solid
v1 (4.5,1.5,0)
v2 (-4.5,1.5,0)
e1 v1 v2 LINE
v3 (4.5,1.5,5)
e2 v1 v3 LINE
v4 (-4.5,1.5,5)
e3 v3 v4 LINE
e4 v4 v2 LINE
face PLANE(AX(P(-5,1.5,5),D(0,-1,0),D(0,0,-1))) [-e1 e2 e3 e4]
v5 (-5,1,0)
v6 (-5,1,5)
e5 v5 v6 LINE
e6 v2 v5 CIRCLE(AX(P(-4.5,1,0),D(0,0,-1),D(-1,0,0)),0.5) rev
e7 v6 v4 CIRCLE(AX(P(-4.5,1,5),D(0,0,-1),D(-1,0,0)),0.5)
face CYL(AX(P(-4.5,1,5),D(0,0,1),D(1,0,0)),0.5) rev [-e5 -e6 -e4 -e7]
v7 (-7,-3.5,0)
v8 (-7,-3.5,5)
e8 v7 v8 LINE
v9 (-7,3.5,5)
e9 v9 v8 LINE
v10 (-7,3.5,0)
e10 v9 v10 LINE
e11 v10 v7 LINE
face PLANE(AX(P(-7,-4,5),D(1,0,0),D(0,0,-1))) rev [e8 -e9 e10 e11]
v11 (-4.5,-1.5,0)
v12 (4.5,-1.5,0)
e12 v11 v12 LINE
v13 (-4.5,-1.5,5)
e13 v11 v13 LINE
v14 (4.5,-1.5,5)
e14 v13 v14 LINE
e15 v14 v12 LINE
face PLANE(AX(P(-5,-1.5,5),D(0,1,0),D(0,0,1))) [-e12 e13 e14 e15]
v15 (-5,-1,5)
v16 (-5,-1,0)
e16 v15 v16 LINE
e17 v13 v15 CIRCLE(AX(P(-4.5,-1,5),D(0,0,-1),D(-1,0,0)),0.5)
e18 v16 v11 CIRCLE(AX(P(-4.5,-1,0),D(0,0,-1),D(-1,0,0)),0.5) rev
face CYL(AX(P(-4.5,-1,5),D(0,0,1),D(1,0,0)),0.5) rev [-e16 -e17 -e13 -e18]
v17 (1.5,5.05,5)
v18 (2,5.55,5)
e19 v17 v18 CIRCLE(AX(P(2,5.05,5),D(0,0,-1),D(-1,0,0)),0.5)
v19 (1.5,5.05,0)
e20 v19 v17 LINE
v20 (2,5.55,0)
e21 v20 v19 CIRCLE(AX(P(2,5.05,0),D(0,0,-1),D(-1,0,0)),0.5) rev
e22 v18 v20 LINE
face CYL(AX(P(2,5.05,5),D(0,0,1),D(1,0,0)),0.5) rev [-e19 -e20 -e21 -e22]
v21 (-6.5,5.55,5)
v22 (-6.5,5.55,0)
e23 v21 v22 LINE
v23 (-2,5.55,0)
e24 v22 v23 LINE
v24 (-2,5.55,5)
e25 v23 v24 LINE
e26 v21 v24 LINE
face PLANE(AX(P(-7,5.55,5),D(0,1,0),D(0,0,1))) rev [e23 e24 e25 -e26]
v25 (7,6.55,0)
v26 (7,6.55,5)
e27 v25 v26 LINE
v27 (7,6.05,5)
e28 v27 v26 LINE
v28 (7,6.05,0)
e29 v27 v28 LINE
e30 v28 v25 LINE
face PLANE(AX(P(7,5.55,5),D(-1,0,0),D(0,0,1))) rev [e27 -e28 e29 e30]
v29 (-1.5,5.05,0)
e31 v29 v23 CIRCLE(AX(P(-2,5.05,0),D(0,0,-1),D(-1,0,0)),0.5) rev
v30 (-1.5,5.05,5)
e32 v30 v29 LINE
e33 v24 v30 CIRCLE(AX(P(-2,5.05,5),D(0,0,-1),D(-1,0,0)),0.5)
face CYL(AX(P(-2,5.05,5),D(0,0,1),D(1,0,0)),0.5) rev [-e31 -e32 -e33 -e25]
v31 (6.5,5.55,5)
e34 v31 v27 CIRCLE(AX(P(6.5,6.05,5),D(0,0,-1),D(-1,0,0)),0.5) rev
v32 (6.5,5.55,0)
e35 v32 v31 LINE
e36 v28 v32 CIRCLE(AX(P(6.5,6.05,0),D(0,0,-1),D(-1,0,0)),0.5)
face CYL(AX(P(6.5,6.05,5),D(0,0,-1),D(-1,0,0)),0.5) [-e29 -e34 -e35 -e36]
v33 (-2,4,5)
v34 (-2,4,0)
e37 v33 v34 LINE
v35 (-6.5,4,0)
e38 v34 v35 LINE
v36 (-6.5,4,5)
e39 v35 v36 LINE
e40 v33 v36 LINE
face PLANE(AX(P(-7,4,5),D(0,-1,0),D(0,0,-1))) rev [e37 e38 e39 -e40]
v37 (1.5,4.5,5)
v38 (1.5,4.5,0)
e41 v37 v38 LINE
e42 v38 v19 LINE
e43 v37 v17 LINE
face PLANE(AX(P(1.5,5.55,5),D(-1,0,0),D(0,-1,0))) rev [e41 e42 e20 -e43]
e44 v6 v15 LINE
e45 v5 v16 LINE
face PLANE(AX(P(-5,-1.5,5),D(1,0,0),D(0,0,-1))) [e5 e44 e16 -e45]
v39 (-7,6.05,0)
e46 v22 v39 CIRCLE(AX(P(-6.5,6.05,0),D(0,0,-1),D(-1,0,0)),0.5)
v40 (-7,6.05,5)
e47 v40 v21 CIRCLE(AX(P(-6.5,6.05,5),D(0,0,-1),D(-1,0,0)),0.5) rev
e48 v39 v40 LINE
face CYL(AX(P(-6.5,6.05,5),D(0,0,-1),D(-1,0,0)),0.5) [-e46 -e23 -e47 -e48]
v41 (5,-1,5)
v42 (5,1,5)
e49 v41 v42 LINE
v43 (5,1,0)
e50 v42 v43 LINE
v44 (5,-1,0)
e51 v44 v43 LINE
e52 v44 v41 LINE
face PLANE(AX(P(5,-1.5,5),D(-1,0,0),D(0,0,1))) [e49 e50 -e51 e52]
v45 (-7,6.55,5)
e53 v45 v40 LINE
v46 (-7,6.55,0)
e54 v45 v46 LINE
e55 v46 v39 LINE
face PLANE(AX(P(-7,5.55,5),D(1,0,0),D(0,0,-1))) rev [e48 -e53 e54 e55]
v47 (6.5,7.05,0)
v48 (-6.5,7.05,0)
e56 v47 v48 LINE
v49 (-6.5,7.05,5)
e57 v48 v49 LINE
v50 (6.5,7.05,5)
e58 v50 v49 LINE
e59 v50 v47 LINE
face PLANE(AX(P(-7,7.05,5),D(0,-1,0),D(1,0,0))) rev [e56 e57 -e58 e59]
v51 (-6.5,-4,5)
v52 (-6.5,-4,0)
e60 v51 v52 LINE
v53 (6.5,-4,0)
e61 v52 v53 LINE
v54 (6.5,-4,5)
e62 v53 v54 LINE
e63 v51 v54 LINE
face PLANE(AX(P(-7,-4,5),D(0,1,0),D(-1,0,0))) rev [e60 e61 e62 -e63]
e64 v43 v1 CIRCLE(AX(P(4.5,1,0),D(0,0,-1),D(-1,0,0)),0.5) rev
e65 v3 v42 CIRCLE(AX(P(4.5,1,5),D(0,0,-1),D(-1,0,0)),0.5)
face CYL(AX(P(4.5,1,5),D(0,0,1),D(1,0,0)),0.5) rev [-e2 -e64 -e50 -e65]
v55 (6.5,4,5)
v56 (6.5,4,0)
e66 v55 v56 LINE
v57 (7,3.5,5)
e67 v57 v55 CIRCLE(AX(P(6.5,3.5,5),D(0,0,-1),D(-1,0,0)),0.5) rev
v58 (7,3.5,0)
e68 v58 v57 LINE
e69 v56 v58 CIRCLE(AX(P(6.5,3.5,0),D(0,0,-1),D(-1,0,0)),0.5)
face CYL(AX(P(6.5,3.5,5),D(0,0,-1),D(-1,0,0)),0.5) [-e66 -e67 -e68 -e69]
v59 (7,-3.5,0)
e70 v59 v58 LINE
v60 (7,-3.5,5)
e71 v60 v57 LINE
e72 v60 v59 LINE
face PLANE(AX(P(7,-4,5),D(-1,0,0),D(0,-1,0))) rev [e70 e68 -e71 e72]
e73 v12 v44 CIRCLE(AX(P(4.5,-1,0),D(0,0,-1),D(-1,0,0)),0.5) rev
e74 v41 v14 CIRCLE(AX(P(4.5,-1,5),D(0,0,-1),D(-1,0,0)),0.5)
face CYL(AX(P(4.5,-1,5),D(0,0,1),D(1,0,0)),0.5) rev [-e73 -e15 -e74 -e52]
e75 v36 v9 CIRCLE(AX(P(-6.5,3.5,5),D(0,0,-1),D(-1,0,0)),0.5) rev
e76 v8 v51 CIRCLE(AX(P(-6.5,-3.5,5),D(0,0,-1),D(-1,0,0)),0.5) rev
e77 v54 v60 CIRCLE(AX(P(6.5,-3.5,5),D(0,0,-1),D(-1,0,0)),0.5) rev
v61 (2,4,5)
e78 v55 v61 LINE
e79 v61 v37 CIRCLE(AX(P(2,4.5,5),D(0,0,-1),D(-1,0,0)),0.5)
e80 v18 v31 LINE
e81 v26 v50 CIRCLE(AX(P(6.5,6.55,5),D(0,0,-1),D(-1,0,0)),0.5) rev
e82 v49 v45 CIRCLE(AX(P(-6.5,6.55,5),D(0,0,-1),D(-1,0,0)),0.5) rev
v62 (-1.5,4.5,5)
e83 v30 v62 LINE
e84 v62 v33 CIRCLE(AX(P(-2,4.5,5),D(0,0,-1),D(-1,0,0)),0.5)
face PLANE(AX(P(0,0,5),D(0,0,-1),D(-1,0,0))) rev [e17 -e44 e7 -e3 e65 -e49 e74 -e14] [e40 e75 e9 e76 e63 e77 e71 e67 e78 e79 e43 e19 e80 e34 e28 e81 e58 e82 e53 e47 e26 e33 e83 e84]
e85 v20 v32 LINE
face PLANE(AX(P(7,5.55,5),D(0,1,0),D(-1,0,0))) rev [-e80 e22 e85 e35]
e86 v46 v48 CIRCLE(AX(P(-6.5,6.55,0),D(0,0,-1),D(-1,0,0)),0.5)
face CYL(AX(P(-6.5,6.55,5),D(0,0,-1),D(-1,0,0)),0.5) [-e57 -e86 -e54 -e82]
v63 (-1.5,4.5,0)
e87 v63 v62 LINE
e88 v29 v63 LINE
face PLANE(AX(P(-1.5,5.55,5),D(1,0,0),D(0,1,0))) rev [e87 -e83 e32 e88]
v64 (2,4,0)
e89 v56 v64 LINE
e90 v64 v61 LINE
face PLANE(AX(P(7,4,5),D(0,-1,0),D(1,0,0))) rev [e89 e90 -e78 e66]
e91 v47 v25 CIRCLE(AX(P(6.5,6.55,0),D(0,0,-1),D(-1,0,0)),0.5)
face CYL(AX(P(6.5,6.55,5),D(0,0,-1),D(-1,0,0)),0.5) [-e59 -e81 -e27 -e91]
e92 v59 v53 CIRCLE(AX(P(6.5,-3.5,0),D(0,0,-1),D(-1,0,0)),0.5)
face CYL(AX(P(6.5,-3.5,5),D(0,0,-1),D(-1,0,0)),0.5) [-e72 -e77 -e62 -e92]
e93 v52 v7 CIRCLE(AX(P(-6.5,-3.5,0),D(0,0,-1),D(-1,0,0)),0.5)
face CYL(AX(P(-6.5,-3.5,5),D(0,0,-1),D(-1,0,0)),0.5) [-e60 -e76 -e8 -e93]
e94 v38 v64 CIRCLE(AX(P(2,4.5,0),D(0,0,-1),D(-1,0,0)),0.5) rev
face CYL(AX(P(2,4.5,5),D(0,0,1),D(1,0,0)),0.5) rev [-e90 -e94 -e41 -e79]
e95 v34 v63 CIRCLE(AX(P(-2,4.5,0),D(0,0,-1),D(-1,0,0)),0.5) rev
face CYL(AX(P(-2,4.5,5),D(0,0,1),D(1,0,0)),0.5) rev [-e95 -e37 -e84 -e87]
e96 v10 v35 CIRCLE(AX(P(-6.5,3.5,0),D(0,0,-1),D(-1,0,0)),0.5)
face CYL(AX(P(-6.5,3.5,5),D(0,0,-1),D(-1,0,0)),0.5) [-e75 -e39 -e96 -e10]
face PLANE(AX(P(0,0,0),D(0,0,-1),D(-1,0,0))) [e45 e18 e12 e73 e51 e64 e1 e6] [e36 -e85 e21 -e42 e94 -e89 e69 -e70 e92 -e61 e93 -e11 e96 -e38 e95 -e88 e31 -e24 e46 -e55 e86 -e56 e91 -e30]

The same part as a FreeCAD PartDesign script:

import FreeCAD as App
import Part
import Sketcher
from FreeCAD import Vector
Q = App.Units.Quantity


def edges_at(feature, points):
    """Names of the edges that pass closest to the given points."""
    edges = feature.Shape.Edges
    near = lambda p: min(range(len(edges)), key=lambda i: edges[i].distToShape(Part.Vertex(*p))[0])
    return sorted({f"Edge{near(p) + 1}" for p in points})


def add_polygon(sketch, points):
    """Adds a closed chain of lines whose ends are joined by coincident constraints."""
    first, n = sketch.GeometryCount, len(points)
    for a, b in zip(points, points[1:] + points[:1]):
        sketch.addGeometry(Part.LineSegment(App.Vector(*a, 0), App.Vector(*b, 0)), False)
    for i in range(n):
        sketch.addConstraint(Sketcher.Constraint("Coincident", first + i, 2, first + (i + 1) % n, 1))

doc = App.newDocument("Part")
params = doc.addObject("Spreadsheet::Sheet", "Params")
for row, (alias, value) in enumerate([
    ("sketch1_width", "14 mm"),
    ("sketch1_width2", "10 mm"),
    ("sketch1_height", "8 mm"),
    ("sketch1_height2", "3 mm"),
    ("sketch1_width3", "5.5 mm"),
    ("pad1_length", "5 mm"),
    ("fillet_radius", "0.5 mm"),
], start=1):
    params.set(f"A{row}", alias)
    params.set(f"B{row}", "=" + value)
    params.setAlias(f"B{row}", alias)

body = doc.addObject("PartDesign::Body", "Body")

# Sketch on XY plane
sketch1 = body.newObject("Sketcher::SketchObject", "Sketch")
sketch1.AttachmentSupport = (doc.getObject("XY_Plane"), [""])
sketch1.MapMode = "FlatFace"
add_polygon(sketch1, [(-7, -4), (7, -4), (7, 4), (1.5, 4), (1.5, 5.5), (7, 5.5), (7, 7), (-7, 7), (-7, 5.5), (-1.5, 5.5), (-1.5, 4), (-7, 4)])  # lines 0-11
add_polygon(sketch1, [(5, -1.5), (-5, -1.5), (-5, 1.5), (5, 1.5)])  # lines 12-15
sketch1.addConstraint([
    Sketcher.Constraint("Horizontal", 0),
    Sketcher.Constraint("Vertical", 1),
    Sketcher.Constraint("Horizontal", 2),
    Sketcher.Constraint("Vertical", 3),
    Sketcher.Constraint("Horizontal", 4),
    Sketcher.Constraint("Vertical", 5),
    Sketcher.Constraint("Horizontal", 6),
    Sketcher.Constraint("Vertical", 7),
    Sketcher.Constraint("Horizontal", 8),
    Sketcher.Constraint("Vertical", 9),
    Sketcher.Constraint("Horizontal", 10),
    Sketcher.Constraint("Vertical", 11),
    Sketcher.Constraint("Horizontal", 12),
    Sketcher.Constraint("Vertical", 13),
    Sketcher.Constraint("Horizontal", 14),
    Sketcher.Constraint("Vertical", 15),
    Sketcher.Constraint("Symmetric", 0, 2, 10, 2, -1, 1),
    Sketcher.Constraint("Symmetric", 12, 2, 14, 2, -1, 1),
    Sketcher.Constraint("Symmetric", 4, 2, 7, 2, -2),
    Sketcher.Constraint("Symmetric", 2, 2, 9, 2, -2),
    Sketcher.Constraint("Vertical", 1, 2, 4, 2),
    Sketcher.Constraint("DistanceX", 0, 1, 0, 2, Q("14 mm")),
    Sketcher.Constraint("DistanceX", 12, 2, 12, 1, Q("10 mm")),
    Sketcher.Constraint("DistanceY", 1, 1, 1, 2, Q("8 mm")),
    Sketcher.Constraint("DistanceY", 13, 1, 13, 2, Q("3 mm")),
    Sketcher.Constraint("DistanceX", 2, 2, 2, 1, Q("5.5 mm")),
    Sketcher.Constraint("DistanceY", 5, 1, 5, 2, Q("1.5 mm")),
    Sketcher.Constraint("DistanceY", 3, 1, 3, 2, Q("1.55 mm")),
])
sketch1.setExpression("Constraints[37]", "Params.sketch1_width")
sketch1.setExpression("Constraints[38]", "Params.sketch1_width2")
sketch1.setExpression("Constraints[39]", "Params.sketch1_height")
sketch1.setExpression("Constraints[40]", "Params.sketch1_height2")
sketch1.setExpression("Constraints[41]", "Params.sketch1_width3")
pad1 = body.newObject("PartDesign::Pad", "Pad")
pad1.Profile = sketch1
pad1.setExpression("Length", "Params.pad1_length")
doc.recompute()

fillet = body.newObject("PartDesign::Fillet", "Fillet")
fillet.Base = (pad1, edges_at(pad1, [
    (-7, 4, 2.5),
    (-1.5, 4, 2.5),
    (-1.5, 5.55, 2.5),
    (-7, 5.55, 2.5),
    (-7, 7.05, 2.5),
    (7, 7.05, 2.5),
    (7, 5.55, 2.5),
    (1.5, 5.55, 2.5),
    (1.5, 4, 2.5),
    (7, 4, 2.5),
    (7, -4, 2.5),
    (-7, -4, 2.5),
    (-5, 1.5, 2.5),
    (-5, -1.5, 2.5),
    (5, -1.5, 2.5),
    (5, 1.5, 2.5),
]))
fillet.setExpression("Radius", "Params.fillet_radius")

doc.recompute()
